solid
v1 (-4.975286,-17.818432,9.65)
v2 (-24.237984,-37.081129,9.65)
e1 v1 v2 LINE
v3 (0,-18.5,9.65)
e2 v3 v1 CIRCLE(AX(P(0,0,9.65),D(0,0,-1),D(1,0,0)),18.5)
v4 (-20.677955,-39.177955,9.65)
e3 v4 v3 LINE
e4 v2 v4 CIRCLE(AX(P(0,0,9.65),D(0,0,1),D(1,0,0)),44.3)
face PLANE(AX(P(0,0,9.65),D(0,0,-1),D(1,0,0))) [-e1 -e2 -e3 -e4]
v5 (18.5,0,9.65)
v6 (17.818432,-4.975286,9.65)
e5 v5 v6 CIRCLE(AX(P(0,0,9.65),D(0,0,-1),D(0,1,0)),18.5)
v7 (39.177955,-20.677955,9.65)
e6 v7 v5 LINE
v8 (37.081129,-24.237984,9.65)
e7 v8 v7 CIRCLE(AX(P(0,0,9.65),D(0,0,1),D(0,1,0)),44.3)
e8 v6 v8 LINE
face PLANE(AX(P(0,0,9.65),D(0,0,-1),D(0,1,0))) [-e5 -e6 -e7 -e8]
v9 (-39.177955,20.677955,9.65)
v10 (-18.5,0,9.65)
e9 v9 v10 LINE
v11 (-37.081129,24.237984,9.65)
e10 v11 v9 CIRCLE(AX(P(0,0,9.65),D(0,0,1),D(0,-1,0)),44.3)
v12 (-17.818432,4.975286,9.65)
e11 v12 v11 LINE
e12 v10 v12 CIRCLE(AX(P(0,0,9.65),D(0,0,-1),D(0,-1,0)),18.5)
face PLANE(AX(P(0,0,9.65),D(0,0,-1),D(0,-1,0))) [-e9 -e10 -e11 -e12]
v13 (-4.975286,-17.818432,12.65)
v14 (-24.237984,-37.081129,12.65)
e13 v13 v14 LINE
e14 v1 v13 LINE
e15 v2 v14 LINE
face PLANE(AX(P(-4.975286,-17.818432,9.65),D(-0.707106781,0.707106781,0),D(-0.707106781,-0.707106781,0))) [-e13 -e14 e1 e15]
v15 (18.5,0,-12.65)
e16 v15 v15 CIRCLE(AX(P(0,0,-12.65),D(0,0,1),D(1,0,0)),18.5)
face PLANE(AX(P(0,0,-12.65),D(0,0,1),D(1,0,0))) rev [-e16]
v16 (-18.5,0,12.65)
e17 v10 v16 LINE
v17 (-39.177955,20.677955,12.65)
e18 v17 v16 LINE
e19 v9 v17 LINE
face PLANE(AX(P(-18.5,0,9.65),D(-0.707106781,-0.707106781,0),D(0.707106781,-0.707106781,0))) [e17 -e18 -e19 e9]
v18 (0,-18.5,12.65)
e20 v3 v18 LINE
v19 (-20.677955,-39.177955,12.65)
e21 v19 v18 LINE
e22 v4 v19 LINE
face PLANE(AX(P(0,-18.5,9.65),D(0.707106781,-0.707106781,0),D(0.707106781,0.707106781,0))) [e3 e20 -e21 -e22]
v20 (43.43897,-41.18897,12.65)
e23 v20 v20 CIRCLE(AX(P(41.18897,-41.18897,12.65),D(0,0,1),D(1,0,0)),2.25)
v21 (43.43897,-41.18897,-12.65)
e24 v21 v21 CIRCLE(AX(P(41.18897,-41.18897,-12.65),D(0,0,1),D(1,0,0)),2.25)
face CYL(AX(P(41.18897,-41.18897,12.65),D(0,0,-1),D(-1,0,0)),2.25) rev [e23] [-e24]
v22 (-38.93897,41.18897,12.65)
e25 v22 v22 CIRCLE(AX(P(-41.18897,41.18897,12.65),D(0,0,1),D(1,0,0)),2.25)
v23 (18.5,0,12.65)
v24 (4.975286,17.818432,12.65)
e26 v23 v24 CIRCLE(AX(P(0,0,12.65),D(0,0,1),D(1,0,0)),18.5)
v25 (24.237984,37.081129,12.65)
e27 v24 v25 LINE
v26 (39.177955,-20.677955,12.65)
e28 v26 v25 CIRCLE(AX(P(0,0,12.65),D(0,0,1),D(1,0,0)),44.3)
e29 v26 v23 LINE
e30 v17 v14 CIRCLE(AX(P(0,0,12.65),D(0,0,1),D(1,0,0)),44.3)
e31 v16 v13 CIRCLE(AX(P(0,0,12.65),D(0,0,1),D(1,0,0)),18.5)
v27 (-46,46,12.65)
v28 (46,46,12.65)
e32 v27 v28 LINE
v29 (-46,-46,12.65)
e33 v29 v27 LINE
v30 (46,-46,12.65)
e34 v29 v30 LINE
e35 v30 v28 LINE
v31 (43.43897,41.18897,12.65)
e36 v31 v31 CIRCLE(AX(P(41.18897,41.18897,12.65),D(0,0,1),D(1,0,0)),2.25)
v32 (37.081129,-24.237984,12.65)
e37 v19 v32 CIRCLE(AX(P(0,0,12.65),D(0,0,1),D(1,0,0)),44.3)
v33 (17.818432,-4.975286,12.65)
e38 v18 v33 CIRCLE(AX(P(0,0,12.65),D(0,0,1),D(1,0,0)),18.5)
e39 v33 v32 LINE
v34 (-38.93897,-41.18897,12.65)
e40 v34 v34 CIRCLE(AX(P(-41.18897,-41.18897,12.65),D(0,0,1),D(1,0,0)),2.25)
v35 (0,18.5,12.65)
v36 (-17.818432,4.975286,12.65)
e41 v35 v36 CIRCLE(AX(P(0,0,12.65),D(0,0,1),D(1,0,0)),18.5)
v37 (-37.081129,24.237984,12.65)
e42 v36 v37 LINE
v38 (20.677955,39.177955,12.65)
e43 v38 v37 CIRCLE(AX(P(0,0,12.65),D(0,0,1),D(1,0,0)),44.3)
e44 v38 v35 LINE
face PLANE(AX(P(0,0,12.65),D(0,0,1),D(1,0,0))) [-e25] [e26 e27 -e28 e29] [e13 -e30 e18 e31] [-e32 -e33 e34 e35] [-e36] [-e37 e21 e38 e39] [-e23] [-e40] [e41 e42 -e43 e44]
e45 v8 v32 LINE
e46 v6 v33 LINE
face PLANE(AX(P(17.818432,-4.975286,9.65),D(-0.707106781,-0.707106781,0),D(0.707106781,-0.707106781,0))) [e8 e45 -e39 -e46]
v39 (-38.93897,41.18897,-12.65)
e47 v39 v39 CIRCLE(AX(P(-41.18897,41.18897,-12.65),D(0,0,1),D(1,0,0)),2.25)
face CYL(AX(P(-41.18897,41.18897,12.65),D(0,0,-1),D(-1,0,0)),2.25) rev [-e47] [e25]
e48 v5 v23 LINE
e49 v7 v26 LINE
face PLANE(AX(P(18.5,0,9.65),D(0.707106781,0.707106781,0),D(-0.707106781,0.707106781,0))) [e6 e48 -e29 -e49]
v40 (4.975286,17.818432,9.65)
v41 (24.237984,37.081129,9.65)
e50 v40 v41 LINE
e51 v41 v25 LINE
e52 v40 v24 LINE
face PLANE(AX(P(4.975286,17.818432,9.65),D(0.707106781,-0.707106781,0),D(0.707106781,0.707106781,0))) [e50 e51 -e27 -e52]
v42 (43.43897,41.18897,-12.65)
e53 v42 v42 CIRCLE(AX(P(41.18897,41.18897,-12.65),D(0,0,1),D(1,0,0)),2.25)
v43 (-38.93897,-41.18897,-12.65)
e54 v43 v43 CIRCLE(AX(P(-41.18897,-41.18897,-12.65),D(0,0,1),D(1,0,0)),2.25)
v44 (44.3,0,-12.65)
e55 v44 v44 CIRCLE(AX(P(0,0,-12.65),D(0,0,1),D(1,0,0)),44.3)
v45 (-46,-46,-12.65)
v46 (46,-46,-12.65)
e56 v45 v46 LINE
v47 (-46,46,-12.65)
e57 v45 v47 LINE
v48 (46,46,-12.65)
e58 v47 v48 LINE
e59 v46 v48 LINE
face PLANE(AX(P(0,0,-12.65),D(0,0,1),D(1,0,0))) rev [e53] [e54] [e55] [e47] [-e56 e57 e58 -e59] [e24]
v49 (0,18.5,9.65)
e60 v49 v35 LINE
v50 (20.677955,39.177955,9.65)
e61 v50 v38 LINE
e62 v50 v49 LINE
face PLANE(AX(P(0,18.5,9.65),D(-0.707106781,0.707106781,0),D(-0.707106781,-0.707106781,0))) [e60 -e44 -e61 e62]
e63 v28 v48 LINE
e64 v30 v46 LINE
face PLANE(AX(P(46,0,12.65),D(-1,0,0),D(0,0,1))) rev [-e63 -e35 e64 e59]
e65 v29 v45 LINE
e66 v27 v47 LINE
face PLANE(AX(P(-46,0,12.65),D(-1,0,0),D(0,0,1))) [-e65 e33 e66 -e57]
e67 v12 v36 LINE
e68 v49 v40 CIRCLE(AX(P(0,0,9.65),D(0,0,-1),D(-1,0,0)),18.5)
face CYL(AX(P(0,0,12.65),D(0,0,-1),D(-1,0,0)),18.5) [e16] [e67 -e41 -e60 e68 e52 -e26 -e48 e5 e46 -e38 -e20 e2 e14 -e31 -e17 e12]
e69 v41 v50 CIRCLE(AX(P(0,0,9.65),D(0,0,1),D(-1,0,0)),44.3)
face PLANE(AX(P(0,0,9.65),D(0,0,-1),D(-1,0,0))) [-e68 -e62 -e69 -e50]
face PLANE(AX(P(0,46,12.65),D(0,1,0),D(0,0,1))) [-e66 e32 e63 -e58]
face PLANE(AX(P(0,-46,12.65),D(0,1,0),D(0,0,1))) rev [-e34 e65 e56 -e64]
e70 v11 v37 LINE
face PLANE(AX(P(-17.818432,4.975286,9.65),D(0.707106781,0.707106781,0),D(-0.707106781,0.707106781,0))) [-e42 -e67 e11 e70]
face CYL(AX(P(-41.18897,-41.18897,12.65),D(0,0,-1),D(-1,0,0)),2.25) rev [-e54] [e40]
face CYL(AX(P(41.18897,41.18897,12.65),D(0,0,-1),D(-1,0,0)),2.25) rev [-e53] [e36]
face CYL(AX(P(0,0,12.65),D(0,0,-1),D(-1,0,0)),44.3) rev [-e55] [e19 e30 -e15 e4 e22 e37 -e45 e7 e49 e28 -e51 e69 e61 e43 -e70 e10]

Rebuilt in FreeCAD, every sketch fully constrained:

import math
import FreeCAD as App
import Part
import Sketcher
from FreeCAD import Vector
Q = App.Units.Quantity


def add_polygon(sketch, points):
    """Adds a closed chain of lines whose ends are joined by coincident constraints."""
    first, n = sketch.GeometryCount, len(points)
    for a, b in zip(points, points[1:] + points[:1]):
        sketch.addGeometry(Part.LineSegment(App.Vector(*a, 0), App.Vector(*b, 0)), False)
    for i in range(n):
        sketch.addConstraint(Sketcher.Constraint("Coincident", first + i, 2, first + (i + 1) % n, 1))

doc = App.newDocument("Part")
params = doc.addObject("Spreadsheet::Sheet", "Params")
for row, (alias, value) in enumerate([
    ("sketch1_diameter", "4.5 mm"),
    ("sketch1_diameter2", "88.6 mm"),
    ("sketch1_width", "92 mm"),
    ("pad1_length", "25.3 mm"),
    ("sketch2_diameter", "37 mm"),
    ("pad2_length", "25.3 mm"),
    ("sketch3_radius", "18.5 mm"),
    ("sketch3_radius2", "44.3 mm"),
    ("pad3_length", "3 mm"),
], start=1):
    params.set(f"A{row}", alias)
    params.set(f"B{row}", "=" + value)
    params.setAlias(f"B{row}", alias)

body = doc.addObject("PartDesign::Body", "Body")

sketch1 = body.newObject("Sketcher::SketchObject", "Sketch")
sketch1.AttachmentSupport = (doc.getObject("XY_Plane"), [""])
sketch1.MapMode = "FlatFace"
add_polygon(sketch1, [(-46, 46), (-46, -46), (46, -46), (46, 46)])
sketch1.addGeometry(Part.Circle(Vector(-41.18897, -41.18897, 0), Vector(0, 0, 1), 2.25), False)
sketch1.addGeometry(Part.Circle(Vector(41.18897, -41.18897, 0), Vector(0, 0, 1), 2.25), False)
sketch1.addGeometry(Part.Circle(Vector(-41.18897, 41.18897, 0), Vector(0, 0, 1), 2.25), False)
sketch1.addGeometry(Part.Circle(Vector(0, 0, 0), Vector(0, 0, 1), 44.3), False)
sketch1.addGeometry(Part.Circle(Vector(41.18897, 41.18897, 0), Vector(0, 0, 1), 2.25), False)
sketch1.addConstraint([
    Sketcher.Constraint("Vertical", 0),
    Sketcher.Constraint("Horizontal", 1),
    Sketcher.Constraint("Vertical", 2),
    Sketcher.Constraint("Horizontal", 3),
    Sketcher.Constraint("Coincident", 7, 3, -1, 1),
    Sketcher.Constraint("Equal", 4, 5),
    Sketcher.Constraint("Equal", 5, 6),
    Sketcher.Constraint("Equal", 6, 8),
    Sketcher.Constraint("Symmetric", 5, 3, 6, 3, -1, 1),
    Sketcher.Constraint("Symmetric", 4, 3, 8, 3, -1, 1),
    Sketcher.Constraint("Symmetric", 0, 2, 2, 2, -1, 1),
    Sketcher.Constraint("Symmetric", 4, 3, 5, 3, -2),
    Sketcher.Constraint("Equal", 3, 0),
    Sketcher.Constraint("Diameter", 4, 4.5),
    Sketcher.Constraint("Diameter", 7, 88.6),
    Sketcher.Constraint("DistanceX", 1, 1, 1, 2, 92.0),
    Sketcher.Constraint("DistanceX", 4, 3, -1, 1, 41.18897),
    Sketcher.Constraint("DistanceY", 4, 3, -1, 1, 41.18897),
])
sketch1.setExpression("Constraints[17]", "Params.sketch1_diameter")
sketch1.setExpression("Constraints[18]", "Params.sketch1_diameter2")
sketch1.setExpression("Constraints[19]", "Params.sketch1_width")
pad1 = body.newObject("PartDesign::Pad", "Pad")
pad1.Profile = sketch1
pad1.setExpression("Length", "Params.pad1_length")
pad1.Midplane = True
body2 = doc.addObject("PartDesign::Body", "Body001")

sketch2 = body2.newObject("Sketcher::SketchObject", "Sketch001")
sketch2.AttachmentSupport = (doc.getObject("XY_Plane001"), [""])
sketch2.MapMode = "FlatFace"
sketch2.addGeometry(Part.Circle(Vector(0, 0, 0), Vector(0, 0, 1), 18.5), False)
sketch2.addConstraint([
    Sketcher.Constraint("Coincident", 0, 3, -1, 1),
    Sketcher.Constraint("Diameter", 0, 37.0),
])
sketch2.setExpression("Constraints[1]", "Params.sketch2_diameter")
pad2 = body2.newObject("PartDesign::Pad", "Pad001")
pad2.Profile = sketch2
pad2.setExpression("Length", "Params.pad2_length")
pad2.Midplane = True
body.AllowCompound = True
doc.recompute()

boolean = body.newObject("PartDesign::Boolean", "Boolean")
boolean.Type = "Fuse"
boolean.addObjects([body2])

sketch3 = body.newObject("Sketcher::SketchObject", "Sketch002")
sketch3.AttachmentSupport = (doc.getObject("XY_Plane"), [""])
sketch3.MapMode = "FlatFace"
sketch3.AttachmentOffset = App.Placement(Vector(0, 0, 9.65), App.Rotation())
sketch3.addGeometry([
    Part.LineSegment(Vector(20.677955, 39.177955, 0), Vector(0, 18.5, 0)),
    Part.ArcOfCircle(Part.Circle(Vector(0, 0, 0), Vector(0, 0, 1), 18.5), math.radians(74.399133), math.radians(90)),
    Part.LineSegment(Vector(4.975286, 17.818432, 0), Vector(24.237984, 37.081129, 0)),
    Part.ArcOfCircle(Part.Circle(Vector(0, 0, 0), Vector(0, 0, 1), 44.3), math.radians(56.829467), math.radians(62.175102)),
], False)
sketch3.addConstraint([
    Sketcher.Constraint("Coincident", 0, 2, 1, 2),
    Sketcher.Constraint("Coincident", 1, 1, 2, 1),
    Sketcher.Constraint("Coincident", 2, 2, 3, 1),
    Sketcher.Constraint("Coincident", 3, 2, 0, 1),
    Sketcher.Constraint("Coincident", 1, 3, -1, 1),
    Sketcher.Constraint("Coincident", 3, 3, -1, 1),
    Sketcher.Constraint("PointOnObject", 0, 2, -2),
    Sketcher.Constraint("Parallel", 0, 2),
    Sketcher.Constraint("Radius", 1, 18.5),
    Sketcher.Constraint("Radius", 3, 44.3),
    Sketcher.Constraint("Angle", 0, Q("-135 deg")),
    Sketcher.Constraint("DistanceY", -1, 1, 2, 2, 37.081129),
])
sketch3.setExpression("Constraints[8]", "Params.sketch3_radius")
sketch3.setExpression("Constraints[9]", "Params.sketch3_radius2")
pad3 = body.newObject("PartDesign::Pad", "Pad002")
pad3.Profile = sketch3
pad3.setExpression("Length", "Params.pad3_length")
doc.recompute()

polarpattern = body.newObject("PartDesign::PolarPattern", "PolarPattern")
polarpattern.Originals = [pad3]
polarpattern.Axis = (doc.getObject("Z_Axis"), [""])
polarpattern.Angle = 360
polarpattern.Occurrences = 4
body.Tip = polarpattern

doc.recompute()
